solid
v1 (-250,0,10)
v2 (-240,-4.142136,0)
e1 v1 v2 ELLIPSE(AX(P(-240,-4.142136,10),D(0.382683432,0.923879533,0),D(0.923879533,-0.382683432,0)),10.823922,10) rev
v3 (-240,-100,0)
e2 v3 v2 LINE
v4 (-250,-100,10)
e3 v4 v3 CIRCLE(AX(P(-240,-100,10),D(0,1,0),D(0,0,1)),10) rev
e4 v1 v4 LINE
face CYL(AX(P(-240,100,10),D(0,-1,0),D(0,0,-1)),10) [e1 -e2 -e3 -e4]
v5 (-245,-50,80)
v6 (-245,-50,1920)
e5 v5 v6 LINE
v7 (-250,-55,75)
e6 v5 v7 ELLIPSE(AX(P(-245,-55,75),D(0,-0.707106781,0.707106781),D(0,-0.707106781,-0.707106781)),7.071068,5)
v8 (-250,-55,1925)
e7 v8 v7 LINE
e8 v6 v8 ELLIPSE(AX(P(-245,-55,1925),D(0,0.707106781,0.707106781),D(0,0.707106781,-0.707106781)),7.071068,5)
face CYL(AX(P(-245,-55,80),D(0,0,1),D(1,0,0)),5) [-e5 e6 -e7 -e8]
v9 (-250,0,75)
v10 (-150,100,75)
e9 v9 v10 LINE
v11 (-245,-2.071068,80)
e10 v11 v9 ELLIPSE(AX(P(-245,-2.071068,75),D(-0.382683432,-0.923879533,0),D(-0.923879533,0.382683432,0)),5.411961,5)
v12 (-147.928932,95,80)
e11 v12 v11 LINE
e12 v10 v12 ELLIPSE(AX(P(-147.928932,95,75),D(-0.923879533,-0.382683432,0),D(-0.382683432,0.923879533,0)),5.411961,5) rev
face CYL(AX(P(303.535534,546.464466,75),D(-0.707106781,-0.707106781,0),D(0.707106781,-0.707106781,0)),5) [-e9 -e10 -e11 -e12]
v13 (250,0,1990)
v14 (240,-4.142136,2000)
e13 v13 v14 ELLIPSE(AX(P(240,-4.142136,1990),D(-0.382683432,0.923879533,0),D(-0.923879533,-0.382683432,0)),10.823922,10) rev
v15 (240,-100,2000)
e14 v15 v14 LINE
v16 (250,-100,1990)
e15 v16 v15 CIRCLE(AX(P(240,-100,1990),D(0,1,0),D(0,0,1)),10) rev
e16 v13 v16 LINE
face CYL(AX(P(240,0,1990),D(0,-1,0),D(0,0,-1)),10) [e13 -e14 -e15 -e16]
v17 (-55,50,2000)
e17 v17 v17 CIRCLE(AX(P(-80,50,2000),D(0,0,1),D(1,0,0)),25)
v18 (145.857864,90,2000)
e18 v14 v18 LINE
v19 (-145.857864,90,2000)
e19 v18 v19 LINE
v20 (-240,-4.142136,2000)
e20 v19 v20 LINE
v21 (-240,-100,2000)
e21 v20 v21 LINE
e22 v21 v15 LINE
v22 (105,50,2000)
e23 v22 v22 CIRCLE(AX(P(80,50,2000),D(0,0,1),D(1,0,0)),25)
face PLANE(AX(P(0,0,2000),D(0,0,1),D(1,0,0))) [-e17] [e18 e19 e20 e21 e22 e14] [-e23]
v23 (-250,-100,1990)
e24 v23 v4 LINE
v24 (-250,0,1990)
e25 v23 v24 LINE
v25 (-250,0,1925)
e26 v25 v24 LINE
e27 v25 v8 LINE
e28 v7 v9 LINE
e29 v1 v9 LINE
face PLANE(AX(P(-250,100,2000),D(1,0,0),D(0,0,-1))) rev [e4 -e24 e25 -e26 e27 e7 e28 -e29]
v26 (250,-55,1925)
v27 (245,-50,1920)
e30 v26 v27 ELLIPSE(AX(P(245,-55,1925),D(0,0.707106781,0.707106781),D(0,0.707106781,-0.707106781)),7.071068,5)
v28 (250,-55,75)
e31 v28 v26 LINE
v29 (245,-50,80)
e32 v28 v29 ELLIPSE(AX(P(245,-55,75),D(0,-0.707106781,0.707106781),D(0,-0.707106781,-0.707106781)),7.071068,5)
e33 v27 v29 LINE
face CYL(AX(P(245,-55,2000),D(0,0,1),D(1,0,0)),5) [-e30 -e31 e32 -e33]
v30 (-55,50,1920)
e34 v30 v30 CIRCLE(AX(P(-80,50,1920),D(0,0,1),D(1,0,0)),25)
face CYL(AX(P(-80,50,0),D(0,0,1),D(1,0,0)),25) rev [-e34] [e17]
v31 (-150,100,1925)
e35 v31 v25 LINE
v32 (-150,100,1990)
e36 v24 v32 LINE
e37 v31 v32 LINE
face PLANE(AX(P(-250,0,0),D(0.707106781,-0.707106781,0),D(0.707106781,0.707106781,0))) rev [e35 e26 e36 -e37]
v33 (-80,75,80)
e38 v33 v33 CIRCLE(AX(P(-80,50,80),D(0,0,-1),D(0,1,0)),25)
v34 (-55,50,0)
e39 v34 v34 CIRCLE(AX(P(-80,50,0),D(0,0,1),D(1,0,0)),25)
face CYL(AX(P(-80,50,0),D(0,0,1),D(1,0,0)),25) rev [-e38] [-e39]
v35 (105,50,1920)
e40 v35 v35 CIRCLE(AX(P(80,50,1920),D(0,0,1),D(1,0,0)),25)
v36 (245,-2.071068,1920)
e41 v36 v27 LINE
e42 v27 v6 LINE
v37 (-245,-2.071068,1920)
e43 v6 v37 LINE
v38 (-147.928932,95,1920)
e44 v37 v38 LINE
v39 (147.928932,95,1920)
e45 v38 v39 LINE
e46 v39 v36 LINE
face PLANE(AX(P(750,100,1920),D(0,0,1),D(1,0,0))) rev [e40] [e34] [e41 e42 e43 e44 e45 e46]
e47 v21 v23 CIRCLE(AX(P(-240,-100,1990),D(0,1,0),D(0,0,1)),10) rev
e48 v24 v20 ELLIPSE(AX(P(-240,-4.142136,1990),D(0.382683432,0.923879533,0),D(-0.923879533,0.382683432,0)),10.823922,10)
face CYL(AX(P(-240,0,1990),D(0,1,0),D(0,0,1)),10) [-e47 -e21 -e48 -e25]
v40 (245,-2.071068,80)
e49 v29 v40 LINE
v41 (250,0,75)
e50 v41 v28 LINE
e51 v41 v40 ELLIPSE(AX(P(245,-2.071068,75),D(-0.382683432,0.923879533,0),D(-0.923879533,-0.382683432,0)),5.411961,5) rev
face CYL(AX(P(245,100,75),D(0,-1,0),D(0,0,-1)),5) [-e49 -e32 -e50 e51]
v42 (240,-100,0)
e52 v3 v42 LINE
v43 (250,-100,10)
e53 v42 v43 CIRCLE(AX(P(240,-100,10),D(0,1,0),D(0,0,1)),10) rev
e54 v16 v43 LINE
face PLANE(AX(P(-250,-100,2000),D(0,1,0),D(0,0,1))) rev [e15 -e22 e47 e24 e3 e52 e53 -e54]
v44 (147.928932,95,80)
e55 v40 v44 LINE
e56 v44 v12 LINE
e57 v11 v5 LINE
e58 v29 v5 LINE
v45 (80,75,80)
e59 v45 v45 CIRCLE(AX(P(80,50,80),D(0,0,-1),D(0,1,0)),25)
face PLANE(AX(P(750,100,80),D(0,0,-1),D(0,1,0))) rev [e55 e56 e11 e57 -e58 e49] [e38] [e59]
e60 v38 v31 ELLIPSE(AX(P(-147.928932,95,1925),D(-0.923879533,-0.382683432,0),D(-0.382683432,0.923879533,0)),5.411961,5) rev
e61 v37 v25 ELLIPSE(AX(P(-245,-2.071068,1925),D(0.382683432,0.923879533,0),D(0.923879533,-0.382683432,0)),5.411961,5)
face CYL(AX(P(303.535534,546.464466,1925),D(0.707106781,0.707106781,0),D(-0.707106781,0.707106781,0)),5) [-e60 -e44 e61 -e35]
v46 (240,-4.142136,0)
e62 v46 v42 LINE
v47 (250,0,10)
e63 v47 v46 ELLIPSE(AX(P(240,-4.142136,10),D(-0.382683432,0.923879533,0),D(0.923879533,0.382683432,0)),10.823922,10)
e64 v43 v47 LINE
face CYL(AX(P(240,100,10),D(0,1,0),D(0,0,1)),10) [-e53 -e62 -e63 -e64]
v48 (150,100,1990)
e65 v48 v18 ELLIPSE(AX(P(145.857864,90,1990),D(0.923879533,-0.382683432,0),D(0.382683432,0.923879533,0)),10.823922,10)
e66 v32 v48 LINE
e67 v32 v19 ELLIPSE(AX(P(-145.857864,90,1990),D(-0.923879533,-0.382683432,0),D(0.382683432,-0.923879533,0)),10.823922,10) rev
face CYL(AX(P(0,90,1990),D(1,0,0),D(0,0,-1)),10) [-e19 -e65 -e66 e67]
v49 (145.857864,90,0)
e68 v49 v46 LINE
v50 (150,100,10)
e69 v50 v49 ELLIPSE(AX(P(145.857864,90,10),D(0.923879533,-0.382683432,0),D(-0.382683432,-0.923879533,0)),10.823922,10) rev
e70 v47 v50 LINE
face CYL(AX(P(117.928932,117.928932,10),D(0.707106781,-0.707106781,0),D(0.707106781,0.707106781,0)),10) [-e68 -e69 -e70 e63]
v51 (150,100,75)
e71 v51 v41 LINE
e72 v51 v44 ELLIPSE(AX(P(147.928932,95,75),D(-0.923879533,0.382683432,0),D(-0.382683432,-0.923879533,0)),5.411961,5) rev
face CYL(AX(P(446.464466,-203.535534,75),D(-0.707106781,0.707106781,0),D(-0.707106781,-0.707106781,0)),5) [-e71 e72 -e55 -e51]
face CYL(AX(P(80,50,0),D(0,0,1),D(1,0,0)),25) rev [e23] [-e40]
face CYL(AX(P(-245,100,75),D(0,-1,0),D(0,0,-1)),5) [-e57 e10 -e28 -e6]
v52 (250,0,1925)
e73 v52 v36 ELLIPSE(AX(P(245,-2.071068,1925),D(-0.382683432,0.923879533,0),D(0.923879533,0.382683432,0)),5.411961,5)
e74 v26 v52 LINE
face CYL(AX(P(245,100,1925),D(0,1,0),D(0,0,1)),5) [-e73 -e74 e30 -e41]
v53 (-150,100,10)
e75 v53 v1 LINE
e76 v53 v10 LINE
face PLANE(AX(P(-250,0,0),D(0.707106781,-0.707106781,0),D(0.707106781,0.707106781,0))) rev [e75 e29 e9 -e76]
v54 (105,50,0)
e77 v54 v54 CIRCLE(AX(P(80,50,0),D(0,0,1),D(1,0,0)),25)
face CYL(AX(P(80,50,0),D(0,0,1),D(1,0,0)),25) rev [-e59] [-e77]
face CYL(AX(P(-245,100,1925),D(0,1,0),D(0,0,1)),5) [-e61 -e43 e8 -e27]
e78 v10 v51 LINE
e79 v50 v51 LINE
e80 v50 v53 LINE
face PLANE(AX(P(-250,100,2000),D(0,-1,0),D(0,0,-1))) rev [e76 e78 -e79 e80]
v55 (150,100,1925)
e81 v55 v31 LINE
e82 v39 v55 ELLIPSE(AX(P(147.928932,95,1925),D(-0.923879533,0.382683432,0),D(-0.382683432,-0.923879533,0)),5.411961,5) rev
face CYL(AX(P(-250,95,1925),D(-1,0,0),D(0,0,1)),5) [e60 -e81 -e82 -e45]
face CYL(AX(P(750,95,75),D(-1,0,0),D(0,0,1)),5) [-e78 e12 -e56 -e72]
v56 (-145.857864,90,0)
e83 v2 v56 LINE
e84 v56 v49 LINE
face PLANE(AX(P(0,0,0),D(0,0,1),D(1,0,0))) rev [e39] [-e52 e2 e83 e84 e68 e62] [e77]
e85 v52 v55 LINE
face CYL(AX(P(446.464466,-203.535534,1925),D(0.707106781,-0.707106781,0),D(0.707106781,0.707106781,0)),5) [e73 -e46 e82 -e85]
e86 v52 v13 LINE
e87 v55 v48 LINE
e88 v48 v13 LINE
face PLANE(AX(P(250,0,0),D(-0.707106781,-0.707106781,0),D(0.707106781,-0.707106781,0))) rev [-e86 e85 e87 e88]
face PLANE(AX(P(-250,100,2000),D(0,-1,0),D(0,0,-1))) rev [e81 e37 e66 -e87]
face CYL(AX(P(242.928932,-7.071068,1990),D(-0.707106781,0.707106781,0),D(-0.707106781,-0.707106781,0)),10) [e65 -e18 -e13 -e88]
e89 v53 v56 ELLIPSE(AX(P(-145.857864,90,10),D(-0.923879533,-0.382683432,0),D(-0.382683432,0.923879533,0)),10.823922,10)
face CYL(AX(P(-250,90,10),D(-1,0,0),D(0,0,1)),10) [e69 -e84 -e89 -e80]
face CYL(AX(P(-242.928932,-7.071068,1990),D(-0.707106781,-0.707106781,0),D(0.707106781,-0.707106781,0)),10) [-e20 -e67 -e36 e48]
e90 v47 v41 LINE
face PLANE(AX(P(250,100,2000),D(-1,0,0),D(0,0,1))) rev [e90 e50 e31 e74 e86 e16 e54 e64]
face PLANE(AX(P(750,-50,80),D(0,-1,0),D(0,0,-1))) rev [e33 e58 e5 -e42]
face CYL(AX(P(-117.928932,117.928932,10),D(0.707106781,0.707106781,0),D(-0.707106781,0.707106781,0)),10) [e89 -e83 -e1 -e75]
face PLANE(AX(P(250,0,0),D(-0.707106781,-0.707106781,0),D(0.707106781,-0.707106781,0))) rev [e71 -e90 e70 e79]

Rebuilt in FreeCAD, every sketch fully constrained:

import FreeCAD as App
import Part
import Sketcher

V = App.Vector
Q = App.Units.Quantity


def edges_at(feature, points):
    """Names of the edges that pass closest to the given points."""
    edges = feature.Shape.Edges
    near = lambda p: min(range(len(edges)), key=lambda i: edges[i].distToShape(Part.Vertex(*p))[0])
    return sorted({f"Edge{near(p) + 1}" for p in points})


def add_polygon(sketch, points):
    """Adds a closed chain of lines whose ends are joined by coincident constraints."""
    first, n = sketch.GeometryCount, len(points)
    for a, b in zip(points, points[1:] + points[:1]):
        sketch.addGeometry(Part.LineSegment(App.Vector(*a, 0), App.Vector(*b, 0)), False)
    for i in range(n):
        sketch.addConstraint(Sketcher.Constraint("Coincident", first + i, 2, first + (i + 1) % n, 1))

doc = App.newDocument("Part")
body = doc.addObject("PartDesign::Body", "Body")

sketch1 = body.newObject("Sketcher::SketchObject", "Sketch")
sketch1.AttachmentSupport = (doc.getObject("XY_Plane"), [""])
sketch1.MapMode = "FlatFace"
add_polygon(sketch1, [(-250, 100), (-250, -100), (250, -100), (250, 100)])
sketch1.addConstraint([
    Sketcher.Constraint("Vertical", 0),
    Sketcher.Constraint("Horizontal", 1),
    Sketcher.Constraint("Vertical", 2),
    Sketcher.Constraint("Horizontal", 3),
    Sketcher.Constraint("Symmetric", 0, 2, 2, 2, -1, 1),
    Sketcher.Constraint("DistanceX", 1, 1, 1, 2, Q("500 mm")),
    Sketcher.Constraint("DistanceY", 0, 2, 0, 1, Q("200 mm")),
])
pad1 = body.newObject("PartDesign::Pad", "Pad")
pad1.Profile = sketch1
pad1.Length = 2000

sketch2 = body.newObject("Sketcher::SketchObject", "Sketch001")
sketch2.AttachmentSupport = (doc.getObject("YZ_Plane"), [""])
sketch2.MapMode = "FlatFace"
sketch2.AttachmentOffset = App.Placement(V(0, 0, -250), App.Rotation())
add_polygon(sketch2, [(100, 80), (-50, 80), (-50, 1920), (100, 1920)])
sketch2.addConstraint([
    Sketcher.Constraint("Horizontal", 0),
    Sketcher.Constraint("Vertical", 1),
    Sketcher.Constraint("Horizontal", 2),
    Sketcher.Constraint("Vertical", 3),
    Sketcher.Constraint("DistanceX", 0, 2, 0, 1, Q("150 mm")),
    Sketcher.Constraint("DistanceY", 1, 1, 1, 2, Q("1840 mm")),
    Sketcher.Constraint("DistanceX", 0, 2, -1, 1, Q("50 mm")),
    Sketcher.Constraint("DistanceY", -1, 1, 0, 2, Q("80 mm")),
])
pocket1 = body.newObject("PartDesign::Pocket", "Pocket")
pocket1.Profile = sketch2
pocket1.Length = 1000
pocket1.Reversed = True

sketch3 = body.newObject("Sketcher::SketchObject", "Sketch002")
sketch3.AttachmentSupport = (doc.getObject("XY_Plane"), [""])
sketch3.MapMode = "FlatFace"
sketch3.AttachmentOffset = App.Placement(V(0, 0, 2000), App.Rotation())
add_polygon(sketch3, [(-250, 0), (-150, 100), (-250, 100)])
add_polygon(sketch3, [(150, 100), (250, 0), (250, 100)])
sketch3.addConstraint([
    Sketcher.Constraint("Horizontal", 1),
    Sketcher.Constraint("Vertical", 2),
    Sketcher.Constraint("Vertical", 4),
    Sketcher.Constraint("Horizontal", 5),
    Sketcher.Constraint("Symmetric", 2, 2, 3, 2, -1, 1),
    Sketcher.Constraint("Symmetric", 0, 2, 5, 2, -2),
    Sketcher.Constraint("PointOnObject", 2, 2, -1),
    Sketcher.Constraint("Perpendicular", 0, 3),
    Sketcher.Constraint("DistanceX", 1, 2, 1, 1, Q("100 mm")),
    Sketcher.Constraint("DistanceX", 0, 2, -1, 1, Q("150 mm")),
])
pocket2 = body.newObject("PartDesign::Pocket", "Pocket001")
pocket2.Profile = sketch3
pocket2.Type = "ThroughAll"

sketch4 = body.newObject("Sketcher::SketchObject", "Sketch003")
sketch4.AttachmentSupport = (doc.getObject("XY_Plane"), [""])
sketch4.MapMode = "FlatFace"
sketch4.AttachmentOffset = App.Placement(V(0, 0, 2000), App.Rotation())
sketch4.addGeometry([
    Part.Circle(V(-80, 50, 0), V(0, 0, 1), 25),
    Part.Circle(V(80, 50, 0), V(0, 0, 1), 25),
], False)
sketch4.addConstraint([
    Sketcher.Constraint("Equal", 0, 1),
    Sketcher.Constraint("Symmetric", 0, 3, 1, 3, -2),
    Sketcher.Constraint("Diameter", 0, Q("50 mm")),
    Sketcher.Constraint("DistanceX", 0, 3, -1, 1, Q("80 mm")),
    Sketcher.Constraint("DistanceY", -1, 1, 0, 3, Q("50 mm")),
])
pocket3 = body.newObject("PartDesign::Pocket", "Pocket002")
pocket3.Profile = sketch4
pocket3.Type = "ThroughAll"
doc.recompute()

fillet = body.newObject("PartDesign::Fillet", "Fillet")
fillet.Base = (pocket3, edges_at(pocket3, [
    (-250, -50, 2000),
    (250, -50, 2000),
    (-200, 50, 2000),
    (0, 100, 2000),
    (200, 50, 2000),
]))
fillet.Radius = 10
doc.recompute()

fillet2 = body.newObject("PartDesign::Fillet", "Fillet001")
fillet2.Base = (fillet, edges_at(fillet, [
    (-250, -50, 0),
    (-200, 50, 0),
    (0, 100, 0),
    (250, -50, 0),
    (200, 50, 0),
]))
fillet2.Radius = 10
doc.recompute()

fillet3 = body.newObject("PartDesign::Fillet", "Fillet002")
fillet3.Base = (fillet2, edges_at(fillet2, [
    (250, -25, 1920),
    (250, -50, 1000),
    (-250, -50, 1000),
    (-250, -25, 1920),
    (-200, 50, 1920),
    (-250, -25, 80),
    (-200, 50, 80),
    (0, 100, 1920),
    (200, 50, 1920),
    (0, 100, 80),
    (250, -25, 80),
    (200, 50, 80),
]))
fillet3.Radius = 5

doc.recompute()
